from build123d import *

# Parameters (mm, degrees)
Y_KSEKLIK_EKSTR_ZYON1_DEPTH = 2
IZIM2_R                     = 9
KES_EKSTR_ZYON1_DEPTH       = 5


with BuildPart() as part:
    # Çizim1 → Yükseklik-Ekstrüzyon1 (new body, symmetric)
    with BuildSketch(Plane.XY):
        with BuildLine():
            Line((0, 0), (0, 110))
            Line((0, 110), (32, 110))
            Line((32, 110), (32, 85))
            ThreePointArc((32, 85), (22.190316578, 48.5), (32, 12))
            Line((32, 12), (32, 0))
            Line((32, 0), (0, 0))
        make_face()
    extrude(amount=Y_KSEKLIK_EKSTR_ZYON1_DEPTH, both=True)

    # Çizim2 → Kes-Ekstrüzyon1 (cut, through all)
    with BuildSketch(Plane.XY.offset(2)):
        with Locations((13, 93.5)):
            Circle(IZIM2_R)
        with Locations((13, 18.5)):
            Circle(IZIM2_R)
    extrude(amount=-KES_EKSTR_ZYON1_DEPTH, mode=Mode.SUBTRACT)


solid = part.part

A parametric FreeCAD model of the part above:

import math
import FreeCAD as App
import Part
import Sketcher

V = App.Vector

doc = App.newDocument("Part")
body = doc.addObject("PartDesign::Body", "Body")

# Sketch on XY plane
sketch1 = body.newObject("Sketcher::SketchObject", "Sketch")
sketch1.AttachmentSupport = (doc.getObject("XY_Plane"), [""])
sketch1.MapMode = "FlatFace"
sketch1.addGeometry(Part.LineSegment(V(0, 110, 0), V(0, 0, 0)), False)
sketch1.addGeometry(Part.LineSegment(V(0, 0, 0), V(32, 0, 0)), False)
sketch1.addGeometry(Part.LineSegment(V(32, 0, 0), V(32, 12, 0)), False)
sketch1.addGeometry(Part.ArcOfCircle(Part.Circle(V(95, 48.5, 0), V(0, 0, 1), 72.809683), math.radians(149.913495), math.radians(210.086505)), False)
sketch1.addGeometry(Part.LineSegment(V(32, 85, 0), V(32, 110, 0)), False)
sketch1.addGeometry(Part.LineSegment(V(32, 110, 0), V(0, 110, 0)), False)
sketch1.addConstraint(Sketcher.Constraint("Coincident", 0, 2, 1, 1))
sketch1.addConstraint(Sketcher.Constraint("Coincident", 1, 2, 2, 1))
sketch1.addConstraint(Sketcher.Constraint("Coincident", 2, 2, 3, 2))
sketch1.addConstraint(Sketcher.Constraint("Coincident", 3, 1, 4, 1))
sketch1.addConstraint(Sketcher.Constraint("Coincident", 4, 2, 5, 1))
sketch1.addConstraint(Sketcher.Constraint("Coincident", 5, 2, 0, 1))
sketch1.addConstraint(Sketcher.Constraint("Vertical", 0))
sketch1.addConstraint(Sketcher.Constraint("Horizontal", 1))
sketch1.addConstraint(Sketcher.Constraint("Vertical", 2))
sketch1.addConstraint(Sketcher.Constraint("Vertical", 4))
sketch1.addConstraint(Sketcher.Constraint("Horizontal", 5))
sketch1.addConstraint(Sketcher.Constraint("Coincident", 0, 2, -1, 1))
sketch1.addConstraint(Sketcher.Constraint("Vertical", 2, 2, 3, 1))
sketch1.addConstraint(Sketcher.Constraint("DistanceX", 1, 1, 1, 2, 32.0))
sketch1.addConstraint(Sketcher.Constraint("DistanceY", 0, 2, 0, 1, 110.0))
sketch1.addConstraint(Sketcher.Constraint("DistanceY", 2, 1, 2, 2, 12.0))
sketch1.addConstraint(Sketcher.Constraint("DistanceY", 4, 1, 4, 2, 25.0))
sketch1.addConstraint(Sketcher.Constraint("DistanceX", -1, 1, 3, 3, 95.0))
pad1 = body.newObject("PartDesign::Pad", "Pad")
pad1.Profile = sketch1
pad1.Length = 4
pad1.Midplane = True

# Sketch on XY plane
sketch2 = body.newObject("Sketcher::SketchObject", "Sketch001")
sketch2.AttachmentSupport = (doc.getObject("XY_Plane"), [""])
sketch2.MapMode = "FlatFace"
sketch2.AttachmentOffset = App.Placement(V(0, 0, 2), App.Rotation())
sketch2.addGeometry(Part.Circle(V(13, 93.5, 0), V(0, 0, 1), 9), False)
sketch2.addGeometry(Part.Circle(V(13, 18.5, 0), V(0, 0, 1), 9), False)
sketch2.addConstraint(Sketcher.Constraint("Equal", 0, 1))
sketch2.addConstraint(Sketcher.Constraint("Vertical", 0, 3, 1, 3))
sketch2.addConstraint(Sketcher.Constraint("Diameter", 0, 18.0))
sketch2.addConstraint(Sketcher.Constraint("DistanceX", -1, 1, 0, 3, 13.0))
sketch2.addConstraint(Sketcher.Constraint("DistanceY", 1, 3, 0, 3, 75.0))
sketch2.addConstraint(Sketcher.Constraint("DistanceY", -1, 1, 0, 3, 93.5))
pocket1 = body.newObject("PartDesign::Pocket", "Pocket")
pocket1.Profile = sketch2
pocket1.Type = "ThroughAll"

doc.recompute()
